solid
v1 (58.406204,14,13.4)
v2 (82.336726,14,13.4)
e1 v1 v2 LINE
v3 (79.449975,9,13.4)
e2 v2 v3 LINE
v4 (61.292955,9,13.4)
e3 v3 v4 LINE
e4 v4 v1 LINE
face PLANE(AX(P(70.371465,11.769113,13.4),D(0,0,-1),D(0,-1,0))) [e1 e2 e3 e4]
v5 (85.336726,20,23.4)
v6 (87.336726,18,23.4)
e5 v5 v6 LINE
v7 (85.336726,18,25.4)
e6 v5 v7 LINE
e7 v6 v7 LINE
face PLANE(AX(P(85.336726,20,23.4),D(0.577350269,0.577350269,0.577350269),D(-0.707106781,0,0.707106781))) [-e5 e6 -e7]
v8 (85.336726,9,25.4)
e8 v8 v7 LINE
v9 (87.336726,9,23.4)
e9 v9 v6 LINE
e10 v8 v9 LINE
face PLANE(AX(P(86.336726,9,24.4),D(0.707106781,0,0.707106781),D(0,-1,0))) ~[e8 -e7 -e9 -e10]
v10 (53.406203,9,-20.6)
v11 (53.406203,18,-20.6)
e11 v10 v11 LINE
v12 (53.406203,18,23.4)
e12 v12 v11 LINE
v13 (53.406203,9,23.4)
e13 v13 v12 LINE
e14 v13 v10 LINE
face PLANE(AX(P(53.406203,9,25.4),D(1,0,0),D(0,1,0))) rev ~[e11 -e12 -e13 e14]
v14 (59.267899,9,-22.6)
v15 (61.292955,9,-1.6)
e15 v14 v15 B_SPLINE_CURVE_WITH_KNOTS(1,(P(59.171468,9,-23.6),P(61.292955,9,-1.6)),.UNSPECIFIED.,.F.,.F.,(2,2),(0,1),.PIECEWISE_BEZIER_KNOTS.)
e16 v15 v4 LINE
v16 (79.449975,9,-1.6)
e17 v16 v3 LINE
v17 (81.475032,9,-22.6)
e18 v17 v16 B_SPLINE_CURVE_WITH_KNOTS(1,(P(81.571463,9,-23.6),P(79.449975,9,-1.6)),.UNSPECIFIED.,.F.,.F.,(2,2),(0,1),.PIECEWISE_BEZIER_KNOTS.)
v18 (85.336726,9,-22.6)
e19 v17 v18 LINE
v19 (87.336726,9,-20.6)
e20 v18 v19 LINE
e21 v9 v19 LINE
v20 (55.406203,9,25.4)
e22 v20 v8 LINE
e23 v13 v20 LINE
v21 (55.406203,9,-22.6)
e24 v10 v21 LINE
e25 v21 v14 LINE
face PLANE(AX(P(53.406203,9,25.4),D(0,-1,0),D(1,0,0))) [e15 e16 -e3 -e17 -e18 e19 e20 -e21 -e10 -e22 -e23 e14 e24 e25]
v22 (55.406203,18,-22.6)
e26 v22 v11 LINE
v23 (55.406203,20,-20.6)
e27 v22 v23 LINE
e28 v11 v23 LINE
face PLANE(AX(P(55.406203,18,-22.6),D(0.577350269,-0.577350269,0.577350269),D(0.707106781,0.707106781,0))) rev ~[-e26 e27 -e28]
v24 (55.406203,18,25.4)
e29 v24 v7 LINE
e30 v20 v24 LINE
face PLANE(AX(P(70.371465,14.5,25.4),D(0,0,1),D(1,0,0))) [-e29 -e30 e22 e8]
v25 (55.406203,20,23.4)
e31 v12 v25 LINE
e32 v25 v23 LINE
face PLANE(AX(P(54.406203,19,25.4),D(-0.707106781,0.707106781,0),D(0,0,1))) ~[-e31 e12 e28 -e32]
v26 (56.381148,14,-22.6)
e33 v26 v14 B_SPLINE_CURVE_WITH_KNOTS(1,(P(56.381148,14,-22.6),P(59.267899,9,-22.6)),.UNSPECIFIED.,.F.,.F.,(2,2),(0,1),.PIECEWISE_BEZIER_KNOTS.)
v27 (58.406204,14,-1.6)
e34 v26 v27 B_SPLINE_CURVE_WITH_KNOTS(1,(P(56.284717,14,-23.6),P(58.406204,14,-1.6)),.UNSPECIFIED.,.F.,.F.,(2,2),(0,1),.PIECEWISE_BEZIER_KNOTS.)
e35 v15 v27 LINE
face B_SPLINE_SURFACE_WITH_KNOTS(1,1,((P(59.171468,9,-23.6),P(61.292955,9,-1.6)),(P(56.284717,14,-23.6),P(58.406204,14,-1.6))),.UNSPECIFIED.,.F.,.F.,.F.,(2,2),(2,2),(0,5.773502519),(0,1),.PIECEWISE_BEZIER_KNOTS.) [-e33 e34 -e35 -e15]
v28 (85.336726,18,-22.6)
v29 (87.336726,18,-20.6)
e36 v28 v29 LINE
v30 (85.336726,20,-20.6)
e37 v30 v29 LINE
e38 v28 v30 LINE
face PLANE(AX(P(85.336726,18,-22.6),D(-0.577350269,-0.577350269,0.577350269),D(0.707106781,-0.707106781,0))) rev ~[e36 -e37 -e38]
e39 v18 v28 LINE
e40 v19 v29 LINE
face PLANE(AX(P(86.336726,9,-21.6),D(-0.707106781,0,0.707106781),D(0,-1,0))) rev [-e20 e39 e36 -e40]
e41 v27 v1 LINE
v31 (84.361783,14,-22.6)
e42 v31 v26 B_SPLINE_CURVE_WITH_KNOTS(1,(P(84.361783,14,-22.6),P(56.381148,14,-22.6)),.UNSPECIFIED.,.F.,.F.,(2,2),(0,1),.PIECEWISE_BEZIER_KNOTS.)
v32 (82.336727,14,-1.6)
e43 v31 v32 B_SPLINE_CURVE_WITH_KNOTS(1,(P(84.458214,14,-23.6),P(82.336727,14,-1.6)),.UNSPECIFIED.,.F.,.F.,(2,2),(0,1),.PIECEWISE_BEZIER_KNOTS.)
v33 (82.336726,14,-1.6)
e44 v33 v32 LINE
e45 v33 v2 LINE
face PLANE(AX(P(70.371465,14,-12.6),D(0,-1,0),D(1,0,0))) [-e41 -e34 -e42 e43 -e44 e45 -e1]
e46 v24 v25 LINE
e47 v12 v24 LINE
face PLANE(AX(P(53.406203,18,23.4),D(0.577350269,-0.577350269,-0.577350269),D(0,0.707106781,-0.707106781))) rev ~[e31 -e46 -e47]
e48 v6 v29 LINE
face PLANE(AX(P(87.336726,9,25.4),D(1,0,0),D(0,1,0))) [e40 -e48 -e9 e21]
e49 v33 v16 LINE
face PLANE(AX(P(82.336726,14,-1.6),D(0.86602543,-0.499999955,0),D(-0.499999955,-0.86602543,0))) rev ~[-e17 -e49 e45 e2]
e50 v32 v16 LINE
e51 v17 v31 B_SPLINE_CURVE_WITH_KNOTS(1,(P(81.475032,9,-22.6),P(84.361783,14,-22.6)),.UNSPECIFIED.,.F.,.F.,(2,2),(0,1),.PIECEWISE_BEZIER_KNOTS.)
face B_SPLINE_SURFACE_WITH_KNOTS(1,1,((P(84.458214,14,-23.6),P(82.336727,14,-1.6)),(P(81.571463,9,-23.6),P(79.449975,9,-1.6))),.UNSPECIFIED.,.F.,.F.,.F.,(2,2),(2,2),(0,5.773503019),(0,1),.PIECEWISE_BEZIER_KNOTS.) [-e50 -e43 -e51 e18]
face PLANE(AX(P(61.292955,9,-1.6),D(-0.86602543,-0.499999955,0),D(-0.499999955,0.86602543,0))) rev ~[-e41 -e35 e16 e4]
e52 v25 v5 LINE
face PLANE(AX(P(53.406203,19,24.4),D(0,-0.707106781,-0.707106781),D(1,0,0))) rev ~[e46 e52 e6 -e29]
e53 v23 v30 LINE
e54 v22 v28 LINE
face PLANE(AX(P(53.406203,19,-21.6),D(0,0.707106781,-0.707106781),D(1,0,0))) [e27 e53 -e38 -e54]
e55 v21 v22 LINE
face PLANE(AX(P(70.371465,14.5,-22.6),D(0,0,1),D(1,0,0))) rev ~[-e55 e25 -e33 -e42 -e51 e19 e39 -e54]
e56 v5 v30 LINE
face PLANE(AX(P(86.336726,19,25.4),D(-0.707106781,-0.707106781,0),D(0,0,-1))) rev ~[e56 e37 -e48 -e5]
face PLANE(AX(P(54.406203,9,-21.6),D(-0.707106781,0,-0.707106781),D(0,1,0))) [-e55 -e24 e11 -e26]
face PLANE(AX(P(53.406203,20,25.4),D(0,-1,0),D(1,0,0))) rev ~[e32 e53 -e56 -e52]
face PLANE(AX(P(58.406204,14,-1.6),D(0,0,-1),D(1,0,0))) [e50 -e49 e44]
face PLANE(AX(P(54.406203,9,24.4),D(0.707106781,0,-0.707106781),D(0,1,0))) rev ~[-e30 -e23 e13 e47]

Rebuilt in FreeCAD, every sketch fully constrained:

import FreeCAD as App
import Part
import Sketcher
from FreeCAD import Vector
Q = App.Units.Quantity


def edges_at(feature, points):
    """Names of the edges that pass closest to the given points."""
    edges = feature.Shape.Edges
    near = lambda p: min(range(len(edges)), key=lambda i: edges[i].distToShape(Part.Vertex(*p))[0])
    return sorted({f"Edge{near(p) + 1}" for p in points})

doc = App.newDocument("Part")
body = doc.addObject("PartDesign::Body", "Body")

sketch1 = doc.addObject("Sketcher::SketchObject", "Sketch")
body.addObject(sketch1)
sketch1.AttachmentSupport = (doc.XY_Plane, [""])
sketch1.MapMode = "FlatFace"
sketch1.AttachmentOffset = App.Placement(Vector(0, 0, 25.4), App.Rotation())
sketch1.addGeometry([
    Part.LineSegment(Vector(53, 20, 0), Vector(53, 9, 0)),
    Part.LineSegment(Vector(53, 9, 0), Vector(87, 9, 0)),
    Part.LineSegment(Vector(87, 9, 0), Vector(87, 20, 0)),
    Part.LineSegment(Vector(87, 20, 0), Vector(53, 20, 0)),
], False)
sketch1.addConstraint([
    Sketcher.Constraint("Coincident", 0, 2, 1, 1),
    Sketcher.Constraint("Coincident", 1, 2, 2, 1),
    Sketcher.Constraint("Coincident", 2, 2, 3, 1),
    Sketcher.Constraint("Coincident", 3, 2, 0, 1),
    Sketcher.Constraint("Vertical", 0),
    Sketcher.Constraint("Horizontal", 1),
    Sketcher.Constraint("Vertical", 2),
    Sketcher.Constraint("Horizontal", 3),
    Sketcher.Constraint("DistanceY", 0, 2, 0, 1, Q("11 mm")),
    Sketcher.Constraint("DistanceY", -1, 1, 0, 2, Q("9 mm")),
    Sketcher.Constraint("DistanceX", 1, 1, 1, 2, Q("33.930523 mm")),
    Sketcher.Constraint("DistanceX", -1, 1, 0, 2, Q("53.406203 mm")),
])
pad1 = doc.addObject("PartDesign::Pad", "Pad")
body.addObject(pad1)
pad1.Profile = sketch1
pad1.Length = 48
pad1.Reversed = True

sketch2 = doc.addObject("Sketcher::SketchObject", "Sketch001")
body.addObject(sketch2)
sketch2.AttachmentSupport = (doc.XY_Plane, [""])
sketch2.MapMode = "FlatFace"
sketch2.AttachmentOffset = App.Placement(Vector(0, 0, -23.6), App.Rotation())
sketch2.addGeometry([
    Part.LineSegment(Vector(56, 14, 0), Vector(84, 14, 0)),
    Part.LineSegment(Vector(84, 14, 0), Vector(82, 9, 0)),
    Part.LineSegment(Vector(82, 9, 0), Vector(59, 9, 0)),
    Part.LineSegment(Vector(59, 9, 0), Vector(56, 14, 0)),
], False)
sketch2.addConstraint([
    Sketcher.Constraint("Coincident", 0, 2, 1, 1),
    Sketcher.Constraint("Coincident", 1, 2, 2, 1),
    Sketcher.Constraint("Coincident", 2, 2, 3, 1),
    Sketcher.Constraint("Coincident", 3, 2, 0, 1),
    Sketcher.Constraint("Horizontal", 0),
    Sketcher.Constraint("Horizontal", 2),
    Sketcher.Constraint("Equal", 1, 3),
    Sketcher.Constraint("Angle", 1, Q("-119.999997 deg")),
    Sketcher.Constraint("DistanceY", -1, 1, 0, 2, Q("14 mm")),
    Sketcher.Constraint("DistanceY", -1, 1, 1, 2, Q("9 mm")),
    Sketcher.Constraint("DistanceX", 0, 1, 0, 2, Q("28.173497 mm")),
    Sketcher.Constraint("DistanceX", -1, 1, 0, 2, Q("84.458214 mm")),
])

sketch3 = doc.addObject("Sketcher::SketchObject", "Sketch002")
body.addObject(sketch3)
sketch3.AttachmentSupport = (doc.XY_Plane, [""])
sketch3.MapMode = "FlatFace"
sketch3.AttachmentOffset = App.Placement(Vector(0, 0, -1.6), App.Rotation())
sketch3.addGeometry([
    Part.LineSegment(Vector(82, 14, 0), Vector(58, 14, 0)),
    Part.LineSegment(Vector(58, 14, 0), Vector(61, 9, 0)),
    Part.LineSegment(Vector(61, 9, 0), Vector(79, 9, 0)),
    Part.LineSegment(Vector(79, 9, 0), Vector(82, 14, 0)),
], False)
sketch3.addConstraint([
    Sketcher.Constraint("Coincident", 0, 2, 1, 1),
    Sketcher.Constraint("Coincident", 1, 2, 2, 1),
    Sketcher.Constraint("Coincident", 2, 2, 3, 1),
    Sketcher.Constraint("Coincident", 3, 2, 0, 1),
    Sketcher.Constraint("Horizontal", 0),
    Sketcher.Constraint("Horizontal", 2),
    Sketcher.Constraint("Equal", 1, 3),
    Sketcher.Constraint("Angle", 1, Q("-60.000003 deg")),
    Sketcher.Constraint("DistanceY", -1, 1, 0, 2, Q("14 mm")),
    Sketcher.Constraint("DistanceY", -1, 1, 1, 2, Q("9 mm")),
    Sketcher.Constraint("DistanceX", 2, 1, 2, 2, Q("18.15702 mm")),
    Sketcher.Constraint("DistanceX", -1, 1, 0, 2, Q("58.406204 mm")),
])

subtractiveloft = doc.addObject("PartDesign::SubtractiveLoft", "SubtractiveLoft")
body.addObject(subtractiveloft)
subtractiveloft.Profile = sketch2
subtractiveloft.Sections = [sketch3]

sketch4 = doc.addObject("Sketcher::SketchObject", "Sketch003")
body.addObject(sketch4)
sketch4.AttachmentSupport = (doc.XY_Plane, [""])
sketch4.MapMode = "FlatFace"
sketch4.AttachmentOffset = App.Placement(Vector(0, 0, -1.6), App.Rotation())
sketch4.addGeometry([
    Part.LineSegment(Vector(58, 14, 0), Vector(82, 14, 0)),
    Part.LineSegment(Vector(82, 14, 0), Vector(79, 9, 0)),
    Part.LineSegment(Vector(79, 9, 0), Vector(61, 9, 0)),
    Part.LineSegment(Vector(61, 9, 0), Vector(58, 14, 0)),
], False)
sketch4.addConstraint([
    Sketcher.Constraint("Coincident", 0, 2, 1, 1),
    Sketcher.Constraint("Coincident", 1, 2, 2, 1),
    Sketcher.Constraint("Coincident", 2, 2, 3, 1),
    Sketcher.Constraint("Coincident", 3, 2, 0, 1),
    Sketcher.Constraint("Horizontal", 0),
    Sketcher.Constraint("Horizontal", 2),
    Sketcher.Constraint("Equal", 1, 3),
    Sketcher.Constraint("Angle", 1, Q("-119.999997 deg")),
    Sketcher.Constraint("DistanceY", -1, 1, 0, 2, Q("14 mm")),
    Sketcher.Constraint("DistanceY", -1, 1, 1, 2, Q("9 mm")),
    Sketcher.Constraint("DistanceX", 0, 1, 0, 2, Q("23.930522 mm")),
    Sketcher.Constraint("DistanceX", -1, 1, 0, 2, Q("82.336726 mm")),
])
pocket1 = doc.addObject("PartDesign::Pocket", "Pocket")
body.addObject(pocket1)
pocket1.Profile = sketch4
pocket1.Length = 15
pocket1.Reversed = True
doc.recompute()

chamfer = doc.addObject("PartDesign::Chamfer", "Chamfer")
body.addObject(chamfer)
chamfer.Base = (pocket1, edges_at(pocket1, [
    (87.337, 14.5, 25.4),
    (87.337, 20, 1.4),
    (70.371, 20, 25.4),
    (53.406, 14.5, 25.4),
    (53.406, 20, 1.4),
    (53.406, 14.5, -22.6),
    (70.371, 20, -22.6),
    (87.337, 14.5, -22.6),
]))
chamfer.Size = 2

doc.recompute()
